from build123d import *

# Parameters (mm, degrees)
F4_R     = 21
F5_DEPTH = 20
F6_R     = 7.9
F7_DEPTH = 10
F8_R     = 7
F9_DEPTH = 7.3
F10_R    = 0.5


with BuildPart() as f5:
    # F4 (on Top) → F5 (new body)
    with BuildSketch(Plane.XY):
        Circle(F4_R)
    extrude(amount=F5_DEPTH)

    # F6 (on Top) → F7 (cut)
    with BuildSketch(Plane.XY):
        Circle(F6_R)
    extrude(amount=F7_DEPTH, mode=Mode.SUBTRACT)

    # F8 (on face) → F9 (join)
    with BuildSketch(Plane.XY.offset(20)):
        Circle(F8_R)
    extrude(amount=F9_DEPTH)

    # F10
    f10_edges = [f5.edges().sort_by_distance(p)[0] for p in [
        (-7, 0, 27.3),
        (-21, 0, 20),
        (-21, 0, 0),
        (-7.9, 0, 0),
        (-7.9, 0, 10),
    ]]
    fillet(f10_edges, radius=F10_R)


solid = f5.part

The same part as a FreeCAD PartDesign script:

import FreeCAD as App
import Part
import Sketcher

V = App.Vector
Q = App.Units.Quantity


def edges_at(feature, points):
    """Names of the edges that pass closest to the given points."""
    edges = feature.Shape.Edges
    near = lambda p: min(range(len(edges)), key=lambda i: edges[i].distToShape(Part.Vertex(*p))[0])
    return sorted({f"Edge{near(p) + 1}" for p in points})

doc = App.newDocument("Part")
body = doc.addObject("PartDesign::Body", "Body")

# Sketch on XY plane
sketch1 = doc.addObject("Sketcher::SketchObject", "Sketch")
body.addObject(sketch1)
sketch1.AttachmentSupport = (doc.XY_Plane, [""])
sketch1.MapMode = "FlatFace"
sketch1.addGeometry(Part.Circle(V(0, 0, 0), V(0, 0, 1), 21), False)
sketch1.addConstraint([
    Sketcher.Constraint("Coincident", 0, 3, -1, 1),
    Sketcher.Constraint("Diameter", 0, Q("42 mm")),
])
pad1 = doc.addObject("PartDesign::Pad", "Pad")
body.addObject(pad1)
pad1.Profile = sketch1
pad1.Length = 20

# Sketch on XY plane
sketch2 = doc.addObject("Sketcher::SketchObject", "Sketch001")
body.addObject(sketch2)
sketch2.AttachmentSupport = (doc.XY_Plane, [""])
sketch2.MapMode = "FlatFace"
sketch2.addGeometry(Part.Circle(V(0, 0, 0), V(0, 0, 1), 8), False)
sketch2.addConstraint([
    Sketcher.Constraint("Coincident", 0, 3, -1, 1),
    Sketcher.Constraint("Diameter", 0, Q("15.8 mm")),
])
pocket1 = doc.addObject("PartDesign::Pocket", "Pocket")
body.addObject(pocket1)
pocket1.Profile = sketch2
pocket1.Length = 10
pocket1.Reversed = True

# Sketch on XY plane
sketch3 = doc.addObject("Sketcher::SketchObject", "Sketch002")
body.addObject(sketch3)
sketch3.AttachmentSupport = (doc.XY_Plane, [""])
sketch3.MapMode = "FlatFace"
sketch3.AttachmentOffset = App.Placement(V(0, 0, 20), App.Rotation())
sketch3.addGeometry(Part.Circle(V(0, 0, 0), V(0, 0, 1), 7), False)
sketch3.addConstraint([
    Sketcher.Constraint("Coincident", 0, 3, -1, 1),
    Sketcher.Constraint("Diameter", 0, Q("14 mm")),
])
pad2 = doc.addObject("PartDesign::Pad", "Pad001")
body.addObject(pad2)
pad2.Profile = sketch3
pad2.Length = 7.3
doc.recompute()

fillet = doc.addObject("PartDesign::Fillet", "Fillet")
body.addObject(fillet)
fillet.Base = (pad2, edges_at(pad2, [
    (-7, 0, 27.3),
    (-21, 0, 20),
    (-21, 0, 0),
    (-7.9, 0, 0),
    (-7.9, 0, 10),
]))
fillet.Radius = 0.5

doc.recompute()
